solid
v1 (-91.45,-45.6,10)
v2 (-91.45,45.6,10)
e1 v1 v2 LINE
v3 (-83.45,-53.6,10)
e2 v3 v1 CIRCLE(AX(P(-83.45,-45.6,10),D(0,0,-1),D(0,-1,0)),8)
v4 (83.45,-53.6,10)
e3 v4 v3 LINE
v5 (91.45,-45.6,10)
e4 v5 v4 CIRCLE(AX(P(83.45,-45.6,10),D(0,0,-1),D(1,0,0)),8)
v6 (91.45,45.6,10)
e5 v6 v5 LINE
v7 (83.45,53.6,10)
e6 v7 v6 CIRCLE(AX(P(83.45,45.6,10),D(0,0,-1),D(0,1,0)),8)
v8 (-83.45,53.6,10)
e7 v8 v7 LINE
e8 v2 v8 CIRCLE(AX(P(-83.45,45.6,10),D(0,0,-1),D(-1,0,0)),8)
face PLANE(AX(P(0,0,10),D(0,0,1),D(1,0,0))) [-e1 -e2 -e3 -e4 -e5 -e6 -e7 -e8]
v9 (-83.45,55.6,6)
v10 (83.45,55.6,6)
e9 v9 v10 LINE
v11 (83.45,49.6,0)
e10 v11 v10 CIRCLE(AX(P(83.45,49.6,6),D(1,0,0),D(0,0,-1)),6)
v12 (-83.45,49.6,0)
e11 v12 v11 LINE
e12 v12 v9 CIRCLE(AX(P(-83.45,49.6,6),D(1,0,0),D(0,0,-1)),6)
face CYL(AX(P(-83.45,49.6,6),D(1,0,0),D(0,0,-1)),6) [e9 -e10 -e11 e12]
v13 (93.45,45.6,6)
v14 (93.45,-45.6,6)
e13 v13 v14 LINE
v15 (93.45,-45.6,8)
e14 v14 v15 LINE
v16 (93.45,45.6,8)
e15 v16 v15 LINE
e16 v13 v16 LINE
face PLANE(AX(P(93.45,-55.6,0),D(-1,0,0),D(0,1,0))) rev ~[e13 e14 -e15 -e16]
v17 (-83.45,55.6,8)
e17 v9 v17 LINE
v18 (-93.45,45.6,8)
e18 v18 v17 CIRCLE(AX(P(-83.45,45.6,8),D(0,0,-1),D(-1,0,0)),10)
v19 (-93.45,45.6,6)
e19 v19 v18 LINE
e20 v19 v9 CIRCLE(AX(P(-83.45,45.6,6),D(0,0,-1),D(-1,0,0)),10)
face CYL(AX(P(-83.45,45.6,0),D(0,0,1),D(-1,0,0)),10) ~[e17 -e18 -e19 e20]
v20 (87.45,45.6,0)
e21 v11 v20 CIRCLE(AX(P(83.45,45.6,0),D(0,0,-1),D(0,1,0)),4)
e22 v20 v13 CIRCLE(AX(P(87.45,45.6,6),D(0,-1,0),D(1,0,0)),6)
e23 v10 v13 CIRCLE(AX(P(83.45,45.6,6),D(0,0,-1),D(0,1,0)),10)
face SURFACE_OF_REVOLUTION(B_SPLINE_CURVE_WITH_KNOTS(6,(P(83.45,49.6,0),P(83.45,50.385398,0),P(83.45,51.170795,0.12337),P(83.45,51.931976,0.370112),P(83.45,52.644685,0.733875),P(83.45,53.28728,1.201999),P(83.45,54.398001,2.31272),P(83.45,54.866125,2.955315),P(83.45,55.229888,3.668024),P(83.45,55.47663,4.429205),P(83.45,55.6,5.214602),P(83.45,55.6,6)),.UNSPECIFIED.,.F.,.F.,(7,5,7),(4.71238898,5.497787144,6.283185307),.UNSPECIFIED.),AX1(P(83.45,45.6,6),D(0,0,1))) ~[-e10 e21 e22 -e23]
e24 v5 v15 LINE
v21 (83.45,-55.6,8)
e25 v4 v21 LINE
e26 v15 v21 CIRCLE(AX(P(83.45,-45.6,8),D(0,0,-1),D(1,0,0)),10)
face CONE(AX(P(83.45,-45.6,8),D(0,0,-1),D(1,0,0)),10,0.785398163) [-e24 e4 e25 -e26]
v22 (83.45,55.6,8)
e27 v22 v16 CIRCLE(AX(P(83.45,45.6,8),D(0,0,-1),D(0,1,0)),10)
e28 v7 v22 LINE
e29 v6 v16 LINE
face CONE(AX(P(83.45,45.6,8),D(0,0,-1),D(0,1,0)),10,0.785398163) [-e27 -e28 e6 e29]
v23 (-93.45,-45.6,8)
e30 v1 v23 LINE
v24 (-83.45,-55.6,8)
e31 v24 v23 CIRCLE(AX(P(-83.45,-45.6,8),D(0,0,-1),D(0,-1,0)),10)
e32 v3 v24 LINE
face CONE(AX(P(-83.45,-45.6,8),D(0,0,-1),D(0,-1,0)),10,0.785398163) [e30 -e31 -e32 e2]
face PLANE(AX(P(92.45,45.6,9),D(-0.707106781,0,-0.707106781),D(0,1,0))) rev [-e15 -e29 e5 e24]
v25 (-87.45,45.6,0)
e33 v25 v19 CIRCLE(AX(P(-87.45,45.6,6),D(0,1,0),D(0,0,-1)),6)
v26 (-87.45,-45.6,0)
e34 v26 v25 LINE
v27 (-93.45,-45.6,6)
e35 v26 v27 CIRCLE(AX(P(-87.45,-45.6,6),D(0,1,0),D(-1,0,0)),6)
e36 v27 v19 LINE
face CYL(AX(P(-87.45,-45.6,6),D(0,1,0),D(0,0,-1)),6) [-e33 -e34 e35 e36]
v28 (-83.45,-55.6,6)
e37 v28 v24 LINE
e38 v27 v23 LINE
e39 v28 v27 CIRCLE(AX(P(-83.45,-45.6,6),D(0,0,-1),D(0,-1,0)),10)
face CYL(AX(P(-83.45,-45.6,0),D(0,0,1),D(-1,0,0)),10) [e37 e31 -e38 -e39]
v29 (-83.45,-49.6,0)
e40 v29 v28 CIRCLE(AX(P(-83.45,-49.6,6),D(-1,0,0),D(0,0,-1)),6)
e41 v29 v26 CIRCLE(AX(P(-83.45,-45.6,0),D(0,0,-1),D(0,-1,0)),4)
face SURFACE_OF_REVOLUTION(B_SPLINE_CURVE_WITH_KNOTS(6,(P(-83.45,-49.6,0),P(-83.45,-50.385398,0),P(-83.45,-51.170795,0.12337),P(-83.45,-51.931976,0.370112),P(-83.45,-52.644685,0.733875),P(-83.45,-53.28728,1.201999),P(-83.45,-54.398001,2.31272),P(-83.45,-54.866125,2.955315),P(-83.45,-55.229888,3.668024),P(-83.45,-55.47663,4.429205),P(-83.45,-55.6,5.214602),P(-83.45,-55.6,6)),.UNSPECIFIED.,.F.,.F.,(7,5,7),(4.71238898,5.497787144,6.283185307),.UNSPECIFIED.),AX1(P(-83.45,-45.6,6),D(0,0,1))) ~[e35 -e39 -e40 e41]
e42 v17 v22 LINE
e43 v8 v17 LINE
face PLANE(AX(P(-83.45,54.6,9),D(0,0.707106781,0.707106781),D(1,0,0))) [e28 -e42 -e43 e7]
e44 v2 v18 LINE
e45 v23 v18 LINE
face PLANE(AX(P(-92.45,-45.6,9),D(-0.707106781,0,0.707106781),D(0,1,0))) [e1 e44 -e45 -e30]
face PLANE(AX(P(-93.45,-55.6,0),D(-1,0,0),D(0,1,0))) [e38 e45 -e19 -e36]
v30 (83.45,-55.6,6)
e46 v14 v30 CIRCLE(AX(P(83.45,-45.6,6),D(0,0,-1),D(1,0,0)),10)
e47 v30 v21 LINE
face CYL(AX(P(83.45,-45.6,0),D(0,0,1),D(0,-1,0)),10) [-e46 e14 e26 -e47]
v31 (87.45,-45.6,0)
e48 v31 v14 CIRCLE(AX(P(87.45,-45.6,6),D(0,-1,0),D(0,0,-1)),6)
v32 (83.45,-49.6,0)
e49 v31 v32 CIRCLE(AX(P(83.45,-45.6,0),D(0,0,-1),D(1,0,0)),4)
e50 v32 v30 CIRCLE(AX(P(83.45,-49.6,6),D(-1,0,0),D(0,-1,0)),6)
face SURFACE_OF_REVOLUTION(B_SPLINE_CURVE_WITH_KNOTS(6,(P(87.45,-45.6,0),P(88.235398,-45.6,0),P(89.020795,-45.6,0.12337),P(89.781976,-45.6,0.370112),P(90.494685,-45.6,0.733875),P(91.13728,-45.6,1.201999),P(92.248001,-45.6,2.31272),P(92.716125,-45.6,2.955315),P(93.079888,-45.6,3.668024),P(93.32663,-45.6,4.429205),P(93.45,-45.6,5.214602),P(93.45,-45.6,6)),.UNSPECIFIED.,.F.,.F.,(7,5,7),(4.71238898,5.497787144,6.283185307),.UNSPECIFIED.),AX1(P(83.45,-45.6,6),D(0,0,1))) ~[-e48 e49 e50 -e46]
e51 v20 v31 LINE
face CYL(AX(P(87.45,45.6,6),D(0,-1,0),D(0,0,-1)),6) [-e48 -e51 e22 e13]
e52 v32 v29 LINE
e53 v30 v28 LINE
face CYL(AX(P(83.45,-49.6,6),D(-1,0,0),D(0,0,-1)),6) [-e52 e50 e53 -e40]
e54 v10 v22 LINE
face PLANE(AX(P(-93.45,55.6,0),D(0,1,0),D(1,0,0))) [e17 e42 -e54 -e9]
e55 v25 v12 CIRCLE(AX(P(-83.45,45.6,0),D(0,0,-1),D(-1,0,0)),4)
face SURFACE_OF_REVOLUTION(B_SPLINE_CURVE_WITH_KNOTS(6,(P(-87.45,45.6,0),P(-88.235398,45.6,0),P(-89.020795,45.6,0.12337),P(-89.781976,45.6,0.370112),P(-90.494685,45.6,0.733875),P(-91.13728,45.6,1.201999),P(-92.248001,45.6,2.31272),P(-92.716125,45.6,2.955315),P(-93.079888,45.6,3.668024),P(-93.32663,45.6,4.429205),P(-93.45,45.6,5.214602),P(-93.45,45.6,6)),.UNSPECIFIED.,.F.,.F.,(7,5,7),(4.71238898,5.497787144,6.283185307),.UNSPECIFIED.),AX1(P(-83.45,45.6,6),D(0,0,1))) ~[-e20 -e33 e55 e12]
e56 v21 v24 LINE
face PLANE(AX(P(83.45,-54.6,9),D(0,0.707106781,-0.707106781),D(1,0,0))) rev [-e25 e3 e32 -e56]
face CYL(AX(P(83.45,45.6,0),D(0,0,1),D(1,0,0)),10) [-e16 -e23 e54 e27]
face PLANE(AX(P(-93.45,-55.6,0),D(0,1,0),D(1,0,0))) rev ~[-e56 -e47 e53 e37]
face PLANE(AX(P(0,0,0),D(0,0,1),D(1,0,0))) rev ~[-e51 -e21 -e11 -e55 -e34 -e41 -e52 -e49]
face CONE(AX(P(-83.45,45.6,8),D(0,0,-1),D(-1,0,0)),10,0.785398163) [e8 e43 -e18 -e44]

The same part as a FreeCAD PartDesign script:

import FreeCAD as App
import Part
import Sketcher
from FreeCAD import Vector
Q = App.Units.Quantity


def edges_at(feature, points):
    """Names of the edges that pass closest to the given points."""
    edges = feature.Shape.Edges
    near = lambda p: min(range(len(edges)), key=lambda i: edges[i].distToShape(Part.Vertex(*p))[0])
    return sorted({f"Edge{near(p) + 1}" for p in points})

doc = App.newDocument("Part")
params = doc.addObject("Spreadsheet::Sheet", "Params")
for row, (alias, value) in enumerate([
    ("sketch1_width", "186.9 mm"),
    ("sketch1_height", "111.2 mm"),
    ("pad1_length", "10 mm"),
    ("fillet_radius", "10 mm"),
    ("chamfer_size", "2 mm"),
    ("fillet2_radius", "6 mm"),
], start=1):
    params.set(f"A{row}", alias)
    params.set(f"B{row}", "=" + value)
    params.setAlias(f"B{row}", alias)

body = doc.addObject("PartDesign::Body", "Body")

sketch1 = body.newObject("Sketcher::SketchObject", "Sketch")
sketch1.AttachmentSupport = (doc.getObject("XY_Plane"), [""])
sketch1.MapMode = "FlatFace"
sketch1.addGeometry(Part.LineSegment(Vector(-93, 56, 0), Vector(-93, -56, 0)), False)
sketch1.addGeometry(Part.LineSegment(Vector(-93, -56, 0), Vector(93, -56, 0)), False)
sketch1.addGeometry(Part.LineSegment(Vector(93, -56, 0), Vector(93, 56, 0)), False)
sketch1.addGeometry(Part.LineSegment(Vector(93, 56, 0), Vector(-93, 56, 0)), False)
sketch1.addConstraint(Sketcher.Constraint("Coincident", 0, 2, 1, 1))
sketch1.addConstraint(Sketcher.Constraint("Coincident", 1, 2, 2, 1))
sketch1.addConstraint(Sketcher.Constraint("Coincident", 2, 2, 3, 1))
sketch1.addConstraint(Sketcher.Constraint("Coincident", 3, 2, 0, 1))
sketch1.addConstraint(Sketcher.Constraint("Vertical", 0))
sketch1.addConstraint(Sketcher.Constraint("Horizontal", 1))
sketch1.addConstraint(Sketcher.Constraint("Vertical", 2))
sketch1.addConstraint(Sketcher.Constraint("Horizontal", 3))
sketch1.addConstraint(Sketcher.Constraint("Symmetric", 0, 2, 2, 2, -1, 1))
sketch1.addConstraint(Sketcher.Constraint("DistanceX", 1, 1, 1, 2, Q("186.9 mm")))
sketch1.addConstraint(Sketcher.Constraint("DistanceY", 0, 2, 0, 1, Q("111.2 mm")))
sketch1.setExpression("Constraints[9]", "Params.sketch1_width")
sketch1.setExpression("Constraints[10]", "Params.sketch1_height")
pad1 = body.newObject("PartDesign::Pad", "Pad")
pad1.Profile = sketch1
pad1.setExpression("Length", "Params.pad1_length")
doc.recompute()

fillet = body.newObject("PartDesign::Fillet", "Fillet")
fillet.Base = (pad1, edges_at(pad1, [
    (93.45, 55.6, 5),
    (93.45, -55.6, 5),
    (-93.45, 55.6, 5),
    (-93.45, -55.6, 5),
]))
fillet.setExpression("Radius", "Params.fillet_radius")
doc.recompute()

chamfer = body.newObject("PartDesign::Chamfer", "Chamfer")
chamfer.Base = (fillet, edges_at(fillet, [(0, 55.6, 10)]))
chamfer.setExpression("Size", "Params.chamfer_size")
doc.recompute()

fillet2 = body.newObject("PartDesign::Fillet", "Fillet001")
fillet2.Base = (chamfer, edges_at(chamfer, [(0, 55.6, 0)]))
fillet2.setExpression("Radius", "Params.fillet2_radius")

doc.recompute()
